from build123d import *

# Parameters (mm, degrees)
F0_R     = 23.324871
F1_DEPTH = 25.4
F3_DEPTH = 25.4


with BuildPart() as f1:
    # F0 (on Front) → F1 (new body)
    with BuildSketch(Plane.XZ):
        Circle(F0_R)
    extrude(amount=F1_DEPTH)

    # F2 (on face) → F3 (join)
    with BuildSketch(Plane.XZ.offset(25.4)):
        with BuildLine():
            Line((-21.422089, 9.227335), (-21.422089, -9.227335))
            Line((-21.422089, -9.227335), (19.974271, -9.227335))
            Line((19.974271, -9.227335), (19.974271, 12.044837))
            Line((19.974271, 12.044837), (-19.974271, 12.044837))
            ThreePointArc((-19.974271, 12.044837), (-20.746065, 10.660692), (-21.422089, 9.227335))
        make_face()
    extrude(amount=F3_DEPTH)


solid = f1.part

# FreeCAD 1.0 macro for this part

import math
import FreeCAD as App
import Part
import Sketcher
from FreeCAD import Vector
Q = App.Units.Quantity

doc = App.newDocument("Part")
body = doc.addObject("PartDesign::Body", "Body")

# Sketch on XZ plane
sketch1 = body.newObject("Sketcher::SketchObject", "Sketch")
sketch1.AttachmentSupport = (doc.getObject("XZ_Plane"), [""])
sketch1.MapMode = "FlatFace"
sketch1.addGeometry(Part.Circle(Vector(0, 0, 0), Vector(0, 0, 1), 23.324871), False)
sketch1.addConstraint(Sketcher.Constraint("Coincident", 0, 3, -1, 1))
sketch1.addConstraint(Sketcher.Constraint("Diameter", 0, 46.649742))
pad1 = body.newObject("PartDesign::Pad", "Pad")
pad1.Profile = sketch1
pad1.Length = Q("1 in")

# Sketch on XZ plane
sketch2 = body.newObject("Sketcher::SketchObject", "Sketch001")
sketch2.AttachmentSupport = (doc.getObject("XZ_Plane"), [""])
sketch2.MapMode = "FlatFace"
sketch2.AttachmentOffset = App.Placement(Vector(0, 0, 1 * 25.4), App.Rotation())
sketch2.addGeometry(Part.LineSegment(Vector(-21.422089, 9.227335, 0), Vector(-21.422089, -9.227335, 0)), False)
sketch2.addGeometry(Part.LineSegment(Vector(-21.422089, -9.227335, 0), Vector(19.974271, -9.227335, 0)), False)
sketch2.addGeometry(Part.LineSegment(Vector(19.974271, -9.227335, 0), Vector(19.974271, 12.044837, 0)), False)
sketch2.addGeometry(Part.LineSegment(Vector(19.974271, 12.044837, 0), Vector(-19.974271, 12.044837, 0)), False)
sketch2.addGeometry(Part.ArcOfCircle(Part.Circle(Vector(0.000309, -0.00016, 0), Vector(0, 0, 1), 23.325218), math.radians(148.909338), math.radians(156.696496)), False)
sketch2.addConstraint(Sketcher.Constraint("Coincident", 0, 2, 1, 1))
sketch2.addConstraint(Sketcher.Constraint("Coincident", 1, 2, 2, 1))
sketch2.addConstraint(Sketcher.Constraint("Coincident", 2, 2, 3, 1))
sketch2.addConstraint(Sketcher.Constraint("Coincident", 3, 2, 4, 1))
sketch2.addConstraint(Sketcher.Constraint("Coincident", 4, 2, 0, 1))
sketch2.addConstraint(Sketcher.Constraint("Vertical", 0))
sketch2.addConstraint(Sketcher.Constraint("Horizontal", 1))
sketch2.addConstraint(Sketcher.Constraint("Vertical", 2))
sketch2.addConstraint(Sketcher.Constraint("Horizontal", 3))
sketch2.addConstraint(Sketcher.Constraint("Radius", 4, 23.325218))
sketch2.addConstraint(Sketcher.Constraint("DistanceX", 1, 1, 1, 2, 41.39636))
sketch2.addConstraint(Sketcher.Constraint("DistanceY", 0, 2, 0, 1, 18.45467))
sketch2.addConstraint(Sketcher.Constraint("DistanceY", 2, 1, 2, 2, 21.272172))
sketch2.addConstraint(Sketcher.Constraint("DistanceX", 3, 2, 3, 1, 39.948542))
sketch2.addConstraint(Sketcher.Constraint("DistanceX", -1, 1, 4, 3, 0.000309))
sketch2.addConstraint(Sketcher.Constraint("DistanceY", 4, 3, -1, 1, 0.00016))
pad2 = body.newObject("PartDesign::Pad", "Pad001")
pad2.Profile = sketch2
pad2.Length = Q("1 in")

doc.recompute()
